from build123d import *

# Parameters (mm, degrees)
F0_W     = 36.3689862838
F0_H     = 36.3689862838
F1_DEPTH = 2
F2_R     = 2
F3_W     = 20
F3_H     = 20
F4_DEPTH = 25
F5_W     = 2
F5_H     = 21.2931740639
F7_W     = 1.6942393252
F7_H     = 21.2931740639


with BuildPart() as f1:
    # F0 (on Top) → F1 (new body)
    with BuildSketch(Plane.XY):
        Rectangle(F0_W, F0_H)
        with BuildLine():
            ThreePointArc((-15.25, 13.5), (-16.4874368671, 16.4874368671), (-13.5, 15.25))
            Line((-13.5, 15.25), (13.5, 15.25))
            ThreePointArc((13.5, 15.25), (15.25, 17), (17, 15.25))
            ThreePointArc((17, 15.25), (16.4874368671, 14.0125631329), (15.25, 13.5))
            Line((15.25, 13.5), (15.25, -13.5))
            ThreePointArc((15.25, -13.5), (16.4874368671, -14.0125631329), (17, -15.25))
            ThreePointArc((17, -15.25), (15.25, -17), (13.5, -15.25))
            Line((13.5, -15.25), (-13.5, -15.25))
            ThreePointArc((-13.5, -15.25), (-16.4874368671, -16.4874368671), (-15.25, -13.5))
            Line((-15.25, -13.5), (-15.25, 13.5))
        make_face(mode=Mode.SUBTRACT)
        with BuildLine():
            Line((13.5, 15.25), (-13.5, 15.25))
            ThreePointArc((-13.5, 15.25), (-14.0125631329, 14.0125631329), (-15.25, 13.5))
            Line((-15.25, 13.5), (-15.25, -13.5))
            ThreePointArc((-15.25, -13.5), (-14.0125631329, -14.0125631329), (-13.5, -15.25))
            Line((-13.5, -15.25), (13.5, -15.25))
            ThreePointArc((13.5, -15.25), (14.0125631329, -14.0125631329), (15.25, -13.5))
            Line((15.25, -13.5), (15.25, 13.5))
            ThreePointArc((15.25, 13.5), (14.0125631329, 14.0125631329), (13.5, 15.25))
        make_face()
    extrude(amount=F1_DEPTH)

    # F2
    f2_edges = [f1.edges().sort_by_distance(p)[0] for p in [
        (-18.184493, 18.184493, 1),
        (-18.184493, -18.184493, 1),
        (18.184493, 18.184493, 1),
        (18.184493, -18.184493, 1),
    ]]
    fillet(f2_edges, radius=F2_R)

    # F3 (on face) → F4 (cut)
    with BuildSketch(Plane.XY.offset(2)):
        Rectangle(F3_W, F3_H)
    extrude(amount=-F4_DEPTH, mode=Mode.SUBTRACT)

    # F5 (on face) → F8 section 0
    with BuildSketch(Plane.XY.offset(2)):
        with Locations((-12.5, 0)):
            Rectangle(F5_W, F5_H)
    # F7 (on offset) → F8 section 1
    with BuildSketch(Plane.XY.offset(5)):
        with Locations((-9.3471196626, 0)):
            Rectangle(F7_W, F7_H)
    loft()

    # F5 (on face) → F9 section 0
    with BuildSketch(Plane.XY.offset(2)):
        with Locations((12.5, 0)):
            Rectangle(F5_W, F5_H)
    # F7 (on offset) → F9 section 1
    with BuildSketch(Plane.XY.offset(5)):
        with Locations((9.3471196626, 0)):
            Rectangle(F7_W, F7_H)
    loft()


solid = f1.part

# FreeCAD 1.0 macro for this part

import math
import FreeCAD as App
import Part
import Sketcher


def edges_at(feature, points):
    """Names of the edges that pass closest to the given points."""
    edges = feature.Shape.Edges
    near = lambda p: min(range(len(edges)), key=lambda i: edges[i].distToShape(Part.Vertex(*p))[0])
    return sorted({f"Edge{near(p) + 1}" for p in points})


def add_polygon(sketch, points):
    """Adds a closed chain of lines whose ends are joined by coincident constraints."""
    first, n = sketch.GeometryCount, len(points)
    for a, b in zip(points, points[1:] + points[:1]):
        sketch.addGeometry(Part.LineSegment(App.Vector(*a, 0), App.Vector(*b, 0)), False)
    for i in range(n):
        sketch.addConstraint(Sketcher.Constraint("Coincident", first + i, 2, first + (i + 1) % n, 1))

doc = App.newDocument("Part")
body = doc.addObject("PartDesign::Body", "Body")

sketch1 = body.newObject("Sketcher::SketchObject", "Sketch")
sketch1.AttachmentSupport = (doc.getObject("XY_Plane"), [""])
sketch1.MapMode = "FlatFace"
add_polygon(sketch1, [(-18.2, 18.2), (-18.2, -18.2), (18.2, -18.2), (18.2, 18.2)])
sketch1.addGeometry(Part.ArcOfCircle(Part.Circle(App.Vector(-15.2, -15.2, 0), App.Vector(0, 0, 1), 1.8), math.radians(90), math.radians(360)), False)
sketch1.addGeometry(Part.ArcOfCircle(Part.Circle(App.Vector(-15.2, -15.2, 0), App.Vector(0, 0, 1), 1.8), math.radians(0), math.radians(90)), False)
sketch1.addGeometry(Part.ArcOfCircle(Part.Circle(App.Vector(15.2, -15.2, 0), App.Vector(0, 0, 1), 1.8), math.radians(180), math.radians(360)), False)
sketch1.addGeometry(Part.ArcOfCircle(Part.Circle(App.Vector(15.2, -15.2, 0), App.Vector(0, 0, 1), 1.8), math.radians(90), math.radians(180)), False)
sketch1.addGeometry(Part.ArcOfCircle(Part.Circle(App.Vector(15.2, -15.2, 0), App.Vector(0, 0, 1), 1.8), math.radians(0), math.radians(90)), False)
sketch1.addGeometry(Part.ArcOfCircle(Part.Circle(App.Vector(15.2, 15.2, 0), App.Vector(0, 0, 1), 1.8), math.radians(-90), math.radians(0)), False)
sketch1.addGeometry(Part.ArcOfCircle(Part.Circle(App.Vector(15.2, 15.2, 0), App.Vector(0, 0, 1), 1.8), math.radians(180), math.radians(270)), False)
sketch1.addGeometry(Part.ArcOfCircle(Part.Circle(App.Vector(15.2, 15.2, 0), App.Vector(0, 0, 1), 1.8), math.radians(0), math.radians(180)), False)
sketch1.addGeometry(Part.ArcOfCircle(Part.Circle(App.Vector(-15.2, 15.2, 0), App.Vector(0, 0, 1), 1.8), math.radians(0), math.radians(270)), False)
sketch1.addGeometry(Part.ArcOfCircle(Part.Circle(App.Vector(-15.2, 15.2, 0), App.Vector(0, 0, 1), 1.8), math.radians(-90), math.radians(0)), False)
sketch1.addConstraint(Sketcher.Constraint("Tangent", 4, 1, 5, 2))
sketch1.addConstraint(Sketcher.Constraint("Coincident", 5, 1, 4, 2))
sketch1.addConstraint(Sketcher.Constraint("Tangent", 6, 1, 7, 2))
sketch1.addConstraint(Sketcher.Constraint("Tangent", 7, 1, 8, 2))
sketch1.addConstraint(Sketcher.Constraint("Tangent", 8, 1, 6, 2))
sketch1.addConstraint(Sketcher.Constraint("Tangent", 9, 1, 10, 2))
sketch1.addConstraint(Sketcher.Constraint("Tangent", 10, 1, 11, 2))
sketch1.addConstraint(Sketcher.Constraint("Tangent", 11, 1, 9, 2))
sketch1.addConstraint(Sketcher.Constraint("Tangent", 12, 1, 13, 2))
sketch1.addConstraint(Sketcher.Constraint("Coincident", 13, 1, 12, 2))
sketch1.addConstraint(Sketcher.Constraint("Vertical", 0))
sketch1.addConstraint(Sketcher.Constraint("Horizontal", 1))
sketch1.addConstraint(Sketcher.Constraint("Vertical", 2))
sketch1.addConstraint(Sketcher.Constraint("Horizontal", 3))
sketch1.addConstraint(Sketcher.Constraint("Equal", 5, 6))
sketch1.addConstraint(Sketcher.Constraint("Equal", 8, 9))
sketch1.addConstraint(Sketcher.Constraint("Equal", 11, 12))
sketch1.addConstraint(Sketcher.Constraint("Symmetric", 4, 3, 9, 3, -1, 1))
sketch1.addConstraint(Sketcher.Constraint("Symmetric", 6, 3, 12, 3, -1, 1))
sketch1.addConstraint(Sketcher.Constraint("Symmetric", 0, 2, 2, 2, -1, 1))
sketch1.addConstraint(Sketcher.Constraint("Symmetric", 4, 3, 6, 3, -2))
sketch1.addConstraint(Sketcher.Constraint("Horizontal", 8, 3, 5, 1))
sketch1.addConstraint(Sketcher.Constraint("Horizontal", 5, 1, 6, 1))
sketch1.addConstraint(Sketcher.Constraint("Horizontal", 6, 1, 8, 1))
sketch1.addConstraint(Sketcher.Constraint("Horizontal", 13, 3, 10, 1))
sketch1.addConstraint(Sketcher.Constraint("Horizontal", 10, 1, 11, 1))
sketch1.addConstraint(Sketcher.Constraint("Horizontal", 11, 1, 12, 1))
sketch1.addConstraint(Sketcher.Constraint("Vertical", 13, 3, 4, 1))
sketch1.addConstraint(Sketcher.Constraint("Vertical", 11, 3, 7, 1))
sketch1.addConstraint(Sketcher.Constraint("Vertical", 7, 1, 9, 1))
sketch1.addConstraint(Sketcher.Constraint("Vertical", 4, 1, 13, 1))
sketch1.addConstraint(Sketcher.Constraint("Equal", 3, 0))
sketch1.addConstraint(Sketcher.Constraint("Radius", 4, 1.75))
sketch1.addConstraint(Sketcher.Constraint("DistanceX", -1, 1, 8, 1, 17.0))
sketch1.addConstraint(Sketcher.Constraint("DistanceY", 7, 1, 9, 1, 27.0))
sketch1.addConstraint(Sketcher.Constraint("DistanceX", 1, 1, 1, 2, 36.368986))
pad1 = body.newObject("PartDesign::Pad", "Pad")
pad1.Profile = sketch1
pad1.Length = 2
doc.recompute()

fillet = body.newObject("PartDesign::Fillet", "Fillet")
fillet.Base = (pad1, edges_at(pad1, [
    (-18.184, 18.184, 1),
    (-18.184, -18.184, 1),
    (18.184, 18.184, 1),
    (18.184, -18.184, 1),
]))
fillet.Radius = 2

sketch2 = body.newObject("Sketcher::SketchObject", "Sketch001")
sketch2.AttachmentSupport = (doc.getObject("XY_Plane"), [""])
sketch2.MapMode = "FlatFace"
sketch2.AttachmentOffset = App.Placement(App.Vector(0, 0, 2), App.Rotation())
add_polygon(sketch2, [(-10, 10), (-10, -10), (10, -10), (10, 10)])
sketch2.addConstraint(Sketcher.Constraint("Vertical", 0))
sketch2.addConstraint(Sketcher.Constraint("Horizontal", 1))
sketch2.addConstraint(Sketcher.Constraint("Vertical", 2))
sketch2.addConstraint(Sketcher.Constraint("Horizontal", 3))
sketch2.addConstraint(Sketcher.Constraint("Symmetric", 0, 2, 2, 2, -1, 1))
sketch2.addConstraint(Sketcher.Constraint("Equal", 3, 0))
sketch2.addConstraint(Sketcher.Constraint("DistanceX", 1, 1, 1, 2, 20.0))
pocket1 = body.newObject("PartDesign::Pocket", "Pocket")
pocket1.Profile = sketch2
pocket1.Length = 25

sketch3 = body.newObject("Sketcher::SketchObject", "Sketch002")
sketch3.AttachmentSupport = (doc.getObject("XY_Plane"), [""])
sketch3.MapMode = "FlatFace"
sketch3.AttachmentOffset = App.Placement(App.Vector(0, 0, 2), App.Rotation())
add_polygon(sketch3, [(-13.5, 10.6), (-13.5, -10.6), (-11.5, -10.6), (-11.5, 10.6)])
sketch3.addConstraint(Sketcher.Constraint("Vertical", 0))
sketch3.addConstraint(Sketcher.Constraint("Horizontal", 1))
sketch3.addConstraint(Sketcher.Constraint("Vertical", 2))
sketch3.addConstraint(Sketcher.Constraint("Horizontal", 3))
sketch3.addConstraint(Sketcher.Constraint("DistanceX", 1, 1, 1, 2, 2.0))
sketch3.addConstraint(Sketcher.Constraint("DistanceX", 0, 2, -1, 1, 13.5))
sketch3.addConstraint(Sketcher.Constraint("DistanceY", 0, 2, 0, 1, 21.293174))
sketch3.addConstraint(Sketcher.Constraint("DistanceY", 0, 2, -1, 1, 10.646587))

sketch4 = body.newObject("Sketcher::SketchObject", "Sketch003")
sketch4.AttachmentSupport = (doc.getObject("XY_Plane"), [""])
sketch4.MapMode = "FlatFace"
sketch4.AttachmentOffset = App.Placement(App.Vector(0, 0, 5), App.Rotation())
add_polygon(sketch4, [(-10.2, 10.6), (-10.2, -10.6), (-8.5, -10.6), (-8.5, 10.6)])
sketch4.addConstraint(Sketcher.Constraint("Vertical", 0))
sketch4.addConstraint(Sketcher.Constraint("Horizontal", 1))
sketch4.addConstraint(Sketcher.Constraint("Vertical", 2))
sketch4.addConstraint(Sketcher.Constraint("Horizontal", 3))
sketch4.addConstraint(Sketcher.Constraint("DistanceX", 1, 2, -1, 1, 8.5))
sketch4.addConstraint(Sketcher.Constraint("DistanceX", 1, 1, 1, 2, 1.694239))
sketch4.addConstraint(Sketcher.Constraint("DistanceY", 0, 2, 0, 1, 21.293174))
sketch4.addConstraint(Sketcher.Constraint("DistanceY", 0, 2, -1, 1, 10.646587))

additiveloft = body.newObject("PartDesign::AdditiveLoft", "AdditiveLoft")
additiveloft.Profile = sketch3
additiveloft.Sections = [sketch4]

sketch5 = body.newObject("Sketcher::SketchObject", "Sketch004")
sketch5.AttachmentSupport = (doc.getObject("XY_Plane"), [""])
sketch5.MapMode = "FlatFace"
sketch5.AttachmentOffset = App.Placement(App.Vector(0, 0, 2), App.Rotation())
add_polygon(sketch5, [(11.5, 10.6), (11.5, -10.6), (13.5, -10.6), (13.5, 10.6)])
sketch5.addConstraint(Sketcher.Constraint("Vertical", 0))
sketch5.addConstraint(Sketcher.Constraint("Horizontal", 1))
sketch5.addConstraint(Sketcher.Constraint("Vertical", 2))
sketch5.addConstraint(Sketcher.Constraint("Horizontal", 3))
sketch5.addConstraint(Sketcher.Constraint("DistanceX", 1, 1, 1, 2, 2.0))
sketch5.addConstraint(Sketcher.Constraint("DistanceX", -1, 1, 0, 2, 11.5))
sketch5.addConstraint(Sketcher.Constraint("DistanceY", 0, 2, 0, 1, 21.293174))
sketch5.addConstraint(Sketcher.Constraint("DistanceY", 0, 2, -1, 1, 10.646587))

sketch6 = body.newObject("Sketcher::SketchObject", "Sketch005")
sketch6.AttachmentSupport = (doc.getObject("XY_Plane"), [""])
sketch6.MapMode = "FlatFace"
sketch6.AttachmentOffset = App.Placement(App.Vector(0, 0, 5), App.Rotation())
add_polygon(sketch6, [(8.5, 10.6), (8.5, -10.6), (10.2, -10.6), (10.2, 10.6)])
sketch6.addConstraint(Sketcher.Constraint("Vertical", 0))
sketch6.addConstraint(Sketcher.Constraint("Horizontal", 1))
sketch6.addConstraint(Sketcher.Constraint("Vertical", 2))
sketch6.addConstraint(Sketcher.Constraint("Horizontal", 3))
sketch6.addConstraint(Sketcher.Constraint("DistanceX", -1, 1, 0, 2, 8.5))
sketch6.addConstraint(Sketcher.Constraint("DistanceX", 1, 1, 1, 2, 1.694239))
sketch6.addConstraint(Sketcher.Constraint("DistanceY", 0, 2, 0, 1, 21.293174))
sketch6.addConstraint(Sketcher.Constraint("DistanceY", 0, 2, -1, 1, 10.646587))

additiveloft2 = body.newObject("PartDesign::AdditiveLoft", "AdditiveLoft001")
additiveloft2.Profile = sketch5
additiveloft2.Sections = [sketch6]

doc.recompute()
